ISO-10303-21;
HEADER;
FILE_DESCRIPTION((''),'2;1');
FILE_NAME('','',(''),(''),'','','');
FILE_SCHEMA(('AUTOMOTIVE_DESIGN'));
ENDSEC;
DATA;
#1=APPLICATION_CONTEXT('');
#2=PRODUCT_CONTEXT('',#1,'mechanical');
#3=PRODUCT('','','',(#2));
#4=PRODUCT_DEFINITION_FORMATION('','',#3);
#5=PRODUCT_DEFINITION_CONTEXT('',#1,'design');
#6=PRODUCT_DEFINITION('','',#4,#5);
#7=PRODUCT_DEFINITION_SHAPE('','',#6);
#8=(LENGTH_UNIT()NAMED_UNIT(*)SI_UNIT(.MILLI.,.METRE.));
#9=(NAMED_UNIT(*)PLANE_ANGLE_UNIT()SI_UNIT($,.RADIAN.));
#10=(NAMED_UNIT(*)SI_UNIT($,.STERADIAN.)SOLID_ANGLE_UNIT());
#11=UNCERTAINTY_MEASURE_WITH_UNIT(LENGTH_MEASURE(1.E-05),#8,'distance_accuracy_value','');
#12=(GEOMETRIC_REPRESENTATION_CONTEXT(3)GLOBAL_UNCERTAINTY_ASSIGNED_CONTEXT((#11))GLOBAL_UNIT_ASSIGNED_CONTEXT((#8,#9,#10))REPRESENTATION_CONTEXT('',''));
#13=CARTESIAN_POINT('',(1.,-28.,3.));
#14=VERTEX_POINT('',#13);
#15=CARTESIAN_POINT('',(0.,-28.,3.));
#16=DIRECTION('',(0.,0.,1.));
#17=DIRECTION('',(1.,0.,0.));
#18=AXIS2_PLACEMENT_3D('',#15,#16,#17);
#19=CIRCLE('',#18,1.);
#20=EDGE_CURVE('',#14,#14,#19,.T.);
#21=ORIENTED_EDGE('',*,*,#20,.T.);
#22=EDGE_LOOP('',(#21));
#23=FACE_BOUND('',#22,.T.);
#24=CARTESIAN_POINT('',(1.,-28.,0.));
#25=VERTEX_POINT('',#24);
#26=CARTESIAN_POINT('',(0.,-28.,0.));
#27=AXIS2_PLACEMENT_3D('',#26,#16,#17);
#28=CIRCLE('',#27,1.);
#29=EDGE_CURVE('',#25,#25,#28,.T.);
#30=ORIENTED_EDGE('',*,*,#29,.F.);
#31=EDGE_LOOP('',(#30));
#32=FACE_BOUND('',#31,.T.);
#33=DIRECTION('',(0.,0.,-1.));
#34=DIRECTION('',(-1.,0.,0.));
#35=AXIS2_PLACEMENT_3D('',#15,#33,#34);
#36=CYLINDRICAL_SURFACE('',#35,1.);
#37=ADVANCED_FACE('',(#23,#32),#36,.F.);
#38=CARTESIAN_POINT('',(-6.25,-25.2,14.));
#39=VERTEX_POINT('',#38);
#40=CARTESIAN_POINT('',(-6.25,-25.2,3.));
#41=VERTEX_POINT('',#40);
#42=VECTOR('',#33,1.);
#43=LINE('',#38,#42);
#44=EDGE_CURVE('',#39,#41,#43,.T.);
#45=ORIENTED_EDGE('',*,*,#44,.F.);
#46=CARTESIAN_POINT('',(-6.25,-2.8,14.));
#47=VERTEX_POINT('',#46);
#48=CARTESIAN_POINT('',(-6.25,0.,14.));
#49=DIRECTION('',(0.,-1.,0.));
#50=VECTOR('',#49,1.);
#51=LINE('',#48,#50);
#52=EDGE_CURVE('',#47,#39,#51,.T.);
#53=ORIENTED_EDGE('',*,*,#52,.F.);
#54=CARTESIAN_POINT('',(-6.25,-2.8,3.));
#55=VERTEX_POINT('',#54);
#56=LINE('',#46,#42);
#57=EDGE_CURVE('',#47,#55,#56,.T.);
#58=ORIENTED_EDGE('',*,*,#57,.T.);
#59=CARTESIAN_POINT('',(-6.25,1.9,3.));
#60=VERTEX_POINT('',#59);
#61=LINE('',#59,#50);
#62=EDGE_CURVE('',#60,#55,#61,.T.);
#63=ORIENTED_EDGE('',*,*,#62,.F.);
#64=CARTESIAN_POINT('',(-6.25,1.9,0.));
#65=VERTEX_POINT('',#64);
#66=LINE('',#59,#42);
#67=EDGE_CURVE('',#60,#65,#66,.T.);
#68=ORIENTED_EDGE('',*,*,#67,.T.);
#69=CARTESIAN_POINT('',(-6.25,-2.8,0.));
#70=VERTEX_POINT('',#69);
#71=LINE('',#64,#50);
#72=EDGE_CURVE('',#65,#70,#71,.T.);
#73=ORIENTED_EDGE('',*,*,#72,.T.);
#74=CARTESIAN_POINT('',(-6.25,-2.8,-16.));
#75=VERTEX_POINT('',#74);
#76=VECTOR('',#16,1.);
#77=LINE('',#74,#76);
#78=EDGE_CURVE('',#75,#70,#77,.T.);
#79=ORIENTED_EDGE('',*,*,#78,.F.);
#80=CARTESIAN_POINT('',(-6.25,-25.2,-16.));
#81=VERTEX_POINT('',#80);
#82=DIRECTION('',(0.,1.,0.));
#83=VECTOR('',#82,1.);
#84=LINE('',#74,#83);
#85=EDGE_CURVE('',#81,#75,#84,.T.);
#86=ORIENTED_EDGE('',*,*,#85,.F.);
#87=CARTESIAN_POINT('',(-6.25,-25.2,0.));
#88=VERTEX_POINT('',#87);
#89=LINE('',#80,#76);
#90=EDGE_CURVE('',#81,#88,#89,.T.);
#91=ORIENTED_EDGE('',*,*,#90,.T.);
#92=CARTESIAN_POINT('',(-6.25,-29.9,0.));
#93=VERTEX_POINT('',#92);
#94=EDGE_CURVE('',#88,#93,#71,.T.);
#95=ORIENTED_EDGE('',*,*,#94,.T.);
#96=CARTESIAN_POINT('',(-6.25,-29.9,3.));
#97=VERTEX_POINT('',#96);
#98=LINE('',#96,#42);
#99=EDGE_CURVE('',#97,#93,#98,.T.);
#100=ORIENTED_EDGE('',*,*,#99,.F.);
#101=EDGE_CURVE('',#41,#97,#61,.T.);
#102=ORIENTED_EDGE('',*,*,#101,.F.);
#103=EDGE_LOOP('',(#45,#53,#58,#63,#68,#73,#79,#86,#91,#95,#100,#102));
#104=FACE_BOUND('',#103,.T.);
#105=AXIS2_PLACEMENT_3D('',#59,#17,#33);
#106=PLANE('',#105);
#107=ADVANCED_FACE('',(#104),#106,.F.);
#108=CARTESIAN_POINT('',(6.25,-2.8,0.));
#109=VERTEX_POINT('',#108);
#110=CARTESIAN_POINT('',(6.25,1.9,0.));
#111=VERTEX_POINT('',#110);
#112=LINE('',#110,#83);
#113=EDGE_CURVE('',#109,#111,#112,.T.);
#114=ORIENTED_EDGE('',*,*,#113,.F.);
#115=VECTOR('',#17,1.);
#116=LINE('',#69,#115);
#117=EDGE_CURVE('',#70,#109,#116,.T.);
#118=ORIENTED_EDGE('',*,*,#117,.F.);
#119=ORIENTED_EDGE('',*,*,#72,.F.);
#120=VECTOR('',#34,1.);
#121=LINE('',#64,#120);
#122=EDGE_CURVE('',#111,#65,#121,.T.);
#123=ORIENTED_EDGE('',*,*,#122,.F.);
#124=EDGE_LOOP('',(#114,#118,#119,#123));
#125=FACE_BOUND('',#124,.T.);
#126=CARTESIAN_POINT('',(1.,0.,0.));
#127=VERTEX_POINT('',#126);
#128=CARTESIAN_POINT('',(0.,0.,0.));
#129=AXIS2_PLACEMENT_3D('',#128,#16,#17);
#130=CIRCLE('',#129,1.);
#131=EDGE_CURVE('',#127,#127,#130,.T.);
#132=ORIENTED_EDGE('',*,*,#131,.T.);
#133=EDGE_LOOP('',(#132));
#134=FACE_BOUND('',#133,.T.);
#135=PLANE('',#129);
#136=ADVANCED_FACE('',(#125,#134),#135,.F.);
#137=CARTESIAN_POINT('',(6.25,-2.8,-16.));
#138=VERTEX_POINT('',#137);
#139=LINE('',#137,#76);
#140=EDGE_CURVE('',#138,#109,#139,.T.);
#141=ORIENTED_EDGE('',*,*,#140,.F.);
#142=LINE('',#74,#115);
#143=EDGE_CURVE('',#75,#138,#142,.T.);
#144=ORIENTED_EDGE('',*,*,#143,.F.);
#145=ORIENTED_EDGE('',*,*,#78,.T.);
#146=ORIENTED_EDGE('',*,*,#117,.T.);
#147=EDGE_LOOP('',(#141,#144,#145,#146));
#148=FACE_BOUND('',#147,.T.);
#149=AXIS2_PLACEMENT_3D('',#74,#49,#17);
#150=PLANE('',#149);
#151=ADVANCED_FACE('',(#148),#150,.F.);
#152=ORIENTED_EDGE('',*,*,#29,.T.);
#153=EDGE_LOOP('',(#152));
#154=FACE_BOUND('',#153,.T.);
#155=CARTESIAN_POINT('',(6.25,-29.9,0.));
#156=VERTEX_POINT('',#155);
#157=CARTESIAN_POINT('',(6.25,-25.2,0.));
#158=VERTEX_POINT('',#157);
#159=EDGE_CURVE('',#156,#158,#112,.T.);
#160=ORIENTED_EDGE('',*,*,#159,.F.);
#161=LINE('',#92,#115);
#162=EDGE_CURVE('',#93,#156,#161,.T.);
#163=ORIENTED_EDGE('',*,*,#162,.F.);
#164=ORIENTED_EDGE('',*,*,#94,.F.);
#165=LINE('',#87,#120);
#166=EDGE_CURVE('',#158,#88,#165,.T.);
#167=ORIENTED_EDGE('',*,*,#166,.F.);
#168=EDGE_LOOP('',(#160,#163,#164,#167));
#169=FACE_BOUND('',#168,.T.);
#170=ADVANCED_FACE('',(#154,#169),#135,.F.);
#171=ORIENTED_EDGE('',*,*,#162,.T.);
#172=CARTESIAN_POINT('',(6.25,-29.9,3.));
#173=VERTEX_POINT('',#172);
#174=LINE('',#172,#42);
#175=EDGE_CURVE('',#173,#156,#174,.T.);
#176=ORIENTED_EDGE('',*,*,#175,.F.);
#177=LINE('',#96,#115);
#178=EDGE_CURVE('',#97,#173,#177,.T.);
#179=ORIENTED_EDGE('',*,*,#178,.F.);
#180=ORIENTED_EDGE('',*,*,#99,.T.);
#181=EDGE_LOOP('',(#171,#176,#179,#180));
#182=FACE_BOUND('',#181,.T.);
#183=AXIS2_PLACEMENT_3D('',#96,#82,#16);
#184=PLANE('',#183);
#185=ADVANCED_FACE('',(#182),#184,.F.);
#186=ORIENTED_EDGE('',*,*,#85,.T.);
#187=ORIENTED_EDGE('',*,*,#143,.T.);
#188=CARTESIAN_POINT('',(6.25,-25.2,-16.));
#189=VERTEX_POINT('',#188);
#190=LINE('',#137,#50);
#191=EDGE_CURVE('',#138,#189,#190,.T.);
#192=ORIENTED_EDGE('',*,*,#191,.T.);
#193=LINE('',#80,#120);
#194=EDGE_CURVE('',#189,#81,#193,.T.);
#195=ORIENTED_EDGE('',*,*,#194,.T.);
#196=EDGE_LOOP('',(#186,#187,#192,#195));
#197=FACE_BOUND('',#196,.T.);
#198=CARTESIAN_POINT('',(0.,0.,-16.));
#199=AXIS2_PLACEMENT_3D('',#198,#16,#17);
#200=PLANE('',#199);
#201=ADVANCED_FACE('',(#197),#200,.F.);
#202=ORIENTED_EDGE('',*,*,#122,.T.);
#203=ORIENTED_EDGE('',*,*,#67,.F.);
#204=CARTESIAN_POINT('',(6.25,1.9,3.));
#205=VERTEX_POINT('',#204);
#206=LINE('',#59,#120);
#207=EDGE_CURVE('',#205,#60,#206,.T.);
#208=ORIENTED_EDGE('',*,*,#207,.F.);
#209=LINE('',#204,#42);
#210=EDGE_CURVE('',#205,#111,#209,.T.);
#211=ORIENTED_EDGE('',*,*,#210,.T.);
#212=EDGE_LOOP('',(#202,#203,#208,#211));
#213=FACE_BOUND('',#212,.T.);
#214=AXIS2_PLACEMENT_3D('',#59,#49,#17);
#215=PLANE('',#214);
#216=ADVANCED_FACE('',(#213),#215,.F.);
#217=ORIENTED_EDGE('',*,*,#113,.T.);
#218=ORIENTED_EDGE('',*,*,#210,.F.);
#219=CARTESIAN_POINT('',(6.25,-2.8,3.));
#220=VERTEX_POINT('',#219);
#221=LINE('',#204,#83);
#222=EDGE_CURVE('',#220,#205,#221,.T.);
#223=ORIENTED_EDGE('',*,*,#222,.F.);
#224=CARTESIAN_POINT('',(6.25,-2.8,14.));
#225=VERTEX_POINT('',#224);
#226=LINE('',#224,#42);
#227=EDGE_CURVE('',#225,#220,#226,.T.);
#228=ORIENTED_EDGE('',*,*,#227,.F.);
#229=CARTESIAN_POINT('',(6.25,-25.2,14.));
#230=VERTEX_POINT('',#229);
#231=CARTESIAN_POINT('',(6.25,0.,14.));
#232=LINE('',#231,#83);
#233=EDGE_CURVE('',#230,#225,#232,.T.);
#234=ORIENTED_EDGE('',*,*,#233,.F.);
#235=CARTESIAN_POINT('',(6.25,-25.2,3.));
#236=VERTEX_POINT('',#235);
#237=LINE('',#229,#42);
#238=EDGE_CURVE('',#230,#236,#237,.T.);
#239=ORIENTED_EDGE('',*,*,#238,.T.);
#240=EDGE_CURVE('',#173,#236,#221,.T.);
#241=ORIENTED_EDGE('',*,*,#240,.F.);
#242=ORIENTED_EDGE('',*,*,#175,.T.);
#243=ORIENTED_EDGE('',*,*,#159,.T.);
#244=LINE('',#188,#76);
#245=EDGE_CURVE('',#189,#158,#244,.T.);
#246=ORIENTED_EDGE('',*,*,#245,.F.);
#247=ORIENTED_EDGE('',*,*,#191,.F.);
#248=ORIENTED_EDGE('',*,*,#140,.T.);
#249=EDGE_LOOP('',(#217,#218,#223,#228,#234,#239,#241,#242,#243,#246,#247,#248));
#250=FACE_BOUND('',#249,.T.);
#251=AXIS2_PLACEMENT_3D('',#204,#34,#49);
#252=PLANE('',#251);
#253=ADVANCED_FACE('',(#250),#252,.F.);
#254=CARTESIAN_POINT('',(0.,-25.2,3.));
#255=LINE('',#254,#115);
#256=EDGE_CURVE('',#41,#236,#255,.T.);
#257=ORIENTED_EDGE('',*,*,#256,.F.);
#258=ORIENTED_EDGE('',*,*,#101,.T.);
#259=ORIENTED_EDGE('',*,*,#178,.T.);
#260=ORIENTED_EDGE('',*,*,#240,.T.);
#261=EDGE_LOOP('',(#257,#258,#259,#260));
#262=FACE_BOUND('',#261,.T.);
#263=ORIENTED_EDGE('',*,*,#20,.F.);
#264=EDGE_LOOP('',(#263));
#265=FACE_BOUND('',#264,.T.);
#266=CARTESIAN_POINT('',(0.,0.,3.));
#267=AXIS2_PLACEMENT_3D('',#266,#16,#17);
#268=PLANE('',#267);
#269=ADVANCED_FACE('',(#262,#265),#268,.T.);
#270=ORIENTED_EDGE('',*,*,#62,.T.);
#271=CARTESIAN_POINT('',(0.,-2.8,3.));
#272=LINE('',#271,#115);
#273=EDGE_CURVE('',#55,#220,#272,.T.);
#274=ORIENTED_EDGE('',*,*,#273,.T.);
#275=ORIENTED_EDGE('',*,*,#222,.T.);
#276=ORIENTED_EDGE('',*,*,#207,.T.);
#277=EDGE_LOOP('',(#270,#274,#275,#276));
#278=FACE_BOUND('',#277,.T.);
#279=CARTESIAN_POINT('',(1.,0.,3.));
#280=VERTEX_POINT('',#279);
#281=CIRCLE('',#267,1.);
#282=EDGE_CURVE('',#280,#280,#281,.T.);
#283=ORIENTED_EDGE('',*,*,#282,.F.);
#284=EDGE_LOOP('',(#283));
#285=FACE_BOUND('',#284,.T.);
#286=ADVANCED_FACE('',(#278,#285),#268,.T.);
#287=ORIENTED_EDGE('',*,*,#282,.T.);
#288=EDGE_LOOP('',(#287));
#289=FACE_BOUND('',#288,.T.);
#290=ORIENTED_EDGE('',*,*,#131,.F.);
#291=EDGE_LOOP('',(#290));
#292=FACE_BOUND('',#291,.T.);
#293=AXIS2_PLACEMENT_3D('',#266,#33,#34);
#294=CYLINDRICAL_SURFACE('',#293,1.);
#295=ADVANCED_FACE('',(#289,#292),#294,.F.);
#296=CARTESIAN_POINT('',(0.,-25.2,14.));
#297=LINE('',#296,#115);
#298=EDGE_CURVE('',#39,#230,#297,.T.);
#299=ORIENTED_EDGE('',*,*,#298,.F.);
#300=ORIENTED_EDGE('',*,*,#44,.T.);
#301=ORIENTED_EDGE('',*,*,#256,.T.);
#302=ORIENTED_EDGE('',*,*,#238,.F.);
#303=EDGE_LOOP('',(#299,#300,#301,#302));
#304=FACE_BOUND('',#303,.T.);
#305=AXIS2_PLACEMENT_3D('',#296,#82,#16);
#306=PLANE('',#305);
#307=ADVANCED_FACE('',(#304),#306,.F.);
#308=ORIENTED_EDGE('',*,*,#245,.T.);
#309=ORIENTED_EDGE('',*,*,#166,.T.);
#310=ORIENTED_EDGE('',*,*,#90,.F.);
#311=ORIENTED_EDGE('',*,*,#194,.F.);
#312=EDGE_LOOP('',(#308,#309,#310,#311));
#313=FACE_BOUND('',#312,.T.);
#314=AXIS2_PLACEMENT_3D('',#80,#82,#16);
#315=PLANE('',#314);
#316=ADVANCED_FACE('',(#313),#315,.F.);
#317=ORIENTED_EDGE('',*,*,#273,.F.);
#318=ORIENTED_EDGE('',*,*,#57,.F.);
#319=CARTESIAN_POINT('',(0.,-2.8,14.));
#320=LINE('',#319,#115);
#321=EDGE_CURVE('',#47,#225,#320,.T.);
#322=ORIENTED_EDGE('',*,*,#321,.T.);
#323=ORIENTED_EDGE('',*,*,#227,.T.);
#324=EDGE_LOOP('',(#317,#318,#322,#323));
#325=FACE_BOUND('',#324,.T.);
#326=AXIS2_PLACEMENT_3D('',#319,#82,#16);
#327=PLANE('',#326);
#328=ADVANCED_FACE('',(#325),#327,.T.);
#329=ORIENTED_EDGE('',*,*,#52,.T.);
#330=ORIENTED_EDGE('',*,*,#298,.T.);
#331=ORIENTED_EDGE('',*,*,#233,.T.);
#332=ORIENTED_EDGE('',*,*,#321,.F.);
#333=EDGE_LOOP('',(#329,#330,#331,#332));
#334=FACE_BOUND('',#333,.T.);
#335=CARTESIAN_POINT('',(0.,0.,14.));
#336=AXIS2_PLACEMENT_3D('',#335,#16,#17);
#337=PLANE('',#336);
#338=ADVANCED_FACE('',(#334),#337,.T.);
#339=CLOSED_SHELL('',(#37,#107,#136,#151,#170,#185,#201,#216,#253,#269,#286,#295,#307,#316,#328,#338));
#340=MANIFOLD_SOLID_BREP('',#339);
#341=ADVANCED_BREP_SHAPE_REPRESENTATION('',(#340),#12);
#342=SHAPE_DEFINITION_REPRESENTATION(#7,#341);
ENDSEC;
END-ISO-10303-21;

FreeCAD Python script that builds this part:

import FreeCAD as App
import Part
import Sketcher
Q = App.Units.Quantity


def add_polygon(sketch, points):
    """Adds a closed chain of lines whose ends are joined by coincident constraints."""
    first, n = sketch.GeometryCount, len(points)
    for a, b in zip(points, points[1:] + points[:1]):
        sketch.addGeometry(Part.LineSegment(App.Vector(*a, 0), App.Vector(*b, 0)), False)
    for i in range(n):
        sketch.addConstraint(Sketcher.Constraint("Coincident", first + i, 2, first + (i + 1) % n, 1))

doc = App.newDocument("Part")
body = doc.addObject("PartDesign::Body", "Body")

# Sketch on XY plane
sketch1 = body.newObject("Sketcher::SketchObject", "Sketch")
sketch1.AttachmentSupport = (doc.getObject("XY_Plane"), [""])
sketch1.MapMode = "FlatFace"
add_polygon(sketch1, [(-6.2, 1.9), (-6.2, -29.9), (6.2, -29.9), (6.2, 1.9)])  # lines 0-3
sketch1.addGeometry(Part.Circle(App.Vector(0, -28, 0), App.Vector(0, 0, 1), 1), False)  # 4
sketch1.addGeometry(Part.Circle(App.Vector(0, 0, 0), App.Vector(0, 0, 1), 1), False)  # 5
sketch1.addConstraint(Sketcher.Constraint("Vertical", 0))
sketch1.addConstraint(Sketcher.Constraint("Horizontal", 1))
sketch1.addConstraint(Sketcher.Constraint("Vertical", 2))
sketch1.addConstraint(Sketcher.Constraint("Horizontal", 3))
sketch1.addConstraint(Sketcher.Constraint("Coincident", 5, 3, -1, 1))
sketch1.addConstraint(Sketcher.Constraint("Equal", 4, 5))
sketch1.addConstraint(Sketcher.Constraint("PointOnObject", 4, 3, -2))
sketch1.addConstraint(Sketcher.Constraint("Diameter", 4, Q("2 mm")))
sketch1.addConstraint(Sketcher.Constraint("DistanceX", 1, 1, 1, 2, Q("12.5 mm")))
sketch1.addConstraint(Sketcher.Constraint("DistanceY", 0, 2, 0, 1, Q("31.8 mm")))
sketch1.addConstraint(Sketcher.Constraint("DistanceY", 4, 3, -1, 1, Q("28 mm")))
sketch1.addConstraint(Sketcher.Constraint("DistanceY", 0, 2, -1, 1, Q("29.9 mm")))
sketch1.addConstraint(Sketcher.Constraint("DistanceX", 0, 2, -1, 1, Q("6.25 mm")))
pad1 = body.newObject("PartDesign::Pad", "Pad")
pad1.Profile = sketch1
pad1.Length = 3

# Sketch on XY plane
sketch2 = body.newObject("Sketcher::SketchObject", "Sketch001")
sketch2.AttachmentSupport = (doc.getObject("XY_Plane"), [""])
sketch2.MapMode = "FlatFace"
sketch2.AttachmentOffset = App.Placement(App.Vector(0, 0, 3), App.Rotation())
add_polygon(sketch2, [(-6, -3), (-6, -25), (6, -25), (6, -3)])  # lines 0-3
sketch2.addConstraint(Sketcher.Constraint("Vertical", 0))
sketch2.addConstraint(Sketcher.Constraint("Horizontal", 1))
sketch2.addConstraint(Sketcher.Constraint("Vertical", 2))
sketch2.addConstraint(Sketcher.Constraint("Horizontal", 3))
sketch2.addConstraint(Sketcher.Constraint("DistanceX", 1, 1, 1, 2, Q("12.5 mm")))
sketch2.addConstraint(Sketcher.Constraint("DistanceY", 0, 2, 0, 1, Q("22.4 mm")))
sketch2.addConstraint(Sketcher.Constraint("DistanceY", 0, 2, -1, 1, Q("25.2 mm")))
sketch2.addConstraint(Sketcher.Constraint("DistanceX", 0, 2, -1, 1, Q("6.25 mm")))
pad2 = body.newObject("PartDesign::Pad", "Pad001")
pad2.Profile = sketch2
pad2.Length = 11

# Sketch on XY plane
sketch3 = body.newObject("Sketcher::SketchObject", "Sketch002")
sketch3.AttachmentSupport = (doc.getObject("XY_Plane"), [""])
sketch3.MapMode = "FlatFace"
add_polygon(sketch3, [(6, -3), (6, -25), (-6, -25), (-6, -3)])  # lines 0-3
sketch3.addConstraint(Sketcher.Constraint("Vertical", 0))
sketch3.addConstraint(Sketcher.Constraint("Horizontal", 1))
sketch3.addConstraint(Sketcher.Constraint("Vertical", 2))
sketch3.addConstraint(Sketcher.Constraint("Horizontal", 3))
sketch3.addConstraint(Sketcher.Constraint("DistanceX", 1, 2, 1, 1, Q("12.5 mm")))
sketch3.addConstraint(Sketcher.Constraint("DistanceY", 0, 2, 0, 1, Q("22.4 mm")))
sketch3.addConstraint(Sketcher.Constraint("DistanceY", 0, 2, -1, 1, Q("25.2 mm")))
sketch3.addConstraint(Sketcher.Constraint("DistanceX", -1, 1, 0, 2, Q("6.25 mm")))
pad3 = body.newObject("PartDesign::Pad", "Pad002")
pad3.Profile = sketch3
pad3.Length = 16
pad3.Reversed = True

doc.recompute()
